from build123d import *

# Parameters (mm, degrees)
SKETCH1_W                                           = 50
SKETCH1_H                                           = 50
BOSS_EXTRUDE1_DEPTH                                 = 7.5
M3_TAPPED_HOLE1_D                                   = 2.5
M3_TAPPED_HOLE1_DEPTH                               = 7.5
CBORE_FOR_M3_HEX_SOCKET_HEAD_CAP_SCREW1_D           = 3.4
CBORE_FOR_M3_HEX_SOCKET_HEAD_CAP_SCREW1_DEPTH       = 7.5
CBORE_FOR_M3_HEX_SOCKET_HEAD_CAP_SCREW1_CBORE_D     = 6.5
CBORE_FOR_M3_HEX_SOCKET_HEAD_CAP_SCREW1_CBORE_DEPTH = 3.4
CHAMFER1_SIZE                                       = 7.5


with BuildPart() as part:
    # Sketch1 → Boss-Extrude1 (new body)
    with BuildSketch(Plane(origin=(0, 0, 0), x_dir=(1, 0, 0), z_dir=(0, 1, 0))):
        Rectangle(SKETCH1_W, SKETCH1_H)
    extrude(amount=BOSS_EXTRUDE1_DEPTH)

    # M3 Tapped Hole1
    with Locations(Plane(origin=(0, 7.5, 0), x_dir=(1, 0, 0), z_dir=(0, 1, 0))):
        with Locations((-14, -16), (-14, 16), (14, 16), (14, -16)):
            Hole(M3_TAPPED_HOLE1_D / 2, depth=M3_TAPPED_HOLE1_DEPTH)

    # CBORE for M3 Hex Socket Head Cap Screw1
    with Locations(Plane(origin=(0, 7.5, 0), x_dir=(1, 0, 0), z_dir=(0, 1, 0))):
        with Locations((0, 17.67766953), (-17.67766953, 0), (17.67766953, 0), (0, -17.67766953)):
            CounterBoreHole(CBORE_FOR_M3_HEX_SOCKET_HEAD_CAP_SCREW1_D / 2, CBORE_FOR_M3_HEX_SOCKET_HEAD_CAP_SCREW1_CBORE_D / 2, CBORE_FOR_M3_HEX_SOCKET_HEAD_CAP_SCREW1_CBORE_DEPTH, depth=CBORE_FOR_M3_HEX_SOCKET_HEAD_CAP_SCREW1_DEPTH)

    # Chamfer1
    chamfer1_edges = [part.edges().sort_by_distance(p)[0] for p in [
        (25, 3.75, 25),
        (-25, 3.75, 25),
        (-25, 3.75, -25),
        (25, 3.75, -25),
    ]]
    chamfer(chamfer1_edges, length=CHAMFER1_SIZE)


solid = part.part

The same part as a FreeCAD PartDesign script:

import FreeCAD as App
import Part
import Sketcher
from FreeCAD import Vector
Q = App.Units.Quantity


def edges_at(feature, points):
    """Names of the edges that pass closest to the given points."""
    edges = feature.Shape.Edges
    near = lambda p: min(range(len(edges)), key=lambda i: edges[i].distToShape(Part.Vertex(*p))[0])
    return sorted({f"Edge{near(p) + 1}" for p in points})


def add_polygon(sketch, points):
    """Adds a closed chain of lines whose ends are joined by coincident constraints."""
    first, n = sketch.GeometryCount, len(points)
    for a, b in zip(points, points[1:] + points[:1]):
        sketch.addGeometry(Part.LineSegment(App.Vector(*a, 0), App.Vector(*b, 0)), False)
    for i in range(n):
        sketch.addConstraint(Sketcher.Constraint("Coincident", first + i, 2, first + (i + 1) % n, 1))

doc = App.newDocument("Part")
body = doc.addObject("PartDesign::Body", "Body")

sketch1 = doc.addObject("Sketcher::SketchObject", "Sketch")
body.addObject(sketch1)
sketch1.AttachmentSupport = (doc.XZ_Plane, [""])
sketch1.MapMode = "FlatFace"
add_polygon(sketch1, [(-25, -25), (-25, 25), (25, 25), (25, -25)])
sketch1.addConstraint([
    Sketcher.Constraint("Vertical", 0),
    Sketcher.Constraint("Horizontal", 1),
    Sketcher.Constraint("Vertical", 2),
    Sketcher.Constraint("Horizontal", 3),
    Sketcher.Constraint("Symmetric", 0, 2, 2, 2, -1, 1),
    Sketcher.Constraint("Equal", 3, 0),
    Sketcher.Constraint("DistanceX", 1, 1, 1, 2, Q("50 mm")),
])
pad1 = doc.addObject("PartDesign::Pad", "Pad")
body.addObject(pad1)
pad1.Profile = sketch1
pad1.Length = 7.5
pad1.Reversed = True

sketch2 = doc.addObject("Sketcher::SketchObject", "Sketch001")
body.addObject(sketch2)
sketch2.AttachmentSupport = (doc.XZ_Plane, [""])
sketch2.MapMode = "FlatFace"
sketch2.AttachmentOffset = App.Placement(Vector(0, 0, -7.5), App.Rotation())
sketch2.addGeometry([
    Part.Circle(Vector(-14, 16, 0), Vector(0, 0, 1), 1.2),
    Part.Circle(Vector(-14, -16, 0), Vector(0, 0, 1), 1.2),
    Part.Circle(Vector(14, -16, 0), Vector(0, 0, 1), 1.2),
    Part.Circle(Vector(14, 16, 0), Vector(0, 0, 1), 1.2),
], False)
sketch2.addConstraint([
    Sketcher.Constraint("Equal", 0, 1),
    Sketcher.Constraint("Equal", 1, 2),
    Sketcher.Constraint("Equal", 2, 3),
    Sketcher.Constraint("Symmetric", 0, 3, 2, 3, -1, 1),
    Sketcher.Constraint("Symmetric", 1, 3, 3, 3, -1, 1),
    Sketcher.Constraint("Symmetric", 1, 3, 2, 3, -2),
    Sketcher.Constraint("Diameter", 0, Q("2.5 mm")),
    Sketcher.Constraint("DistanceX", 0, 3, -1, 1, Q("14 mm")),
    Sketcher.Constraint("DistanceY", -1, 1, 0, 3, Q("16 mm")),
])
doc.recompute()
hole = doc.addObject("PartDesign::Hole", "Hole")
body.addObject(hole)
hole.Profile = sketch2
hole.ThreadType = "None"
hole.Diameter = 2.5
hole.DepthType = "Dimension"
hole.Depth = 7.5
hole.DrillPoint = "Flat"
hole.Reversed = True

sketch3 = doc.addObject("Sketcher::SketchObject", "Sketch002")
body.addObject(sketch3)
sketch3.AttachmentSupport = (doc.XZ_Plane, [""])
sketch3.MapMode = "FlatFace"
sketch3.AttachmentOffset = App.Placement(Vector(0, 0, -7.5), App.Rotation())
sketch3.addGeometry([
    Part.Circle(Vector(0, -17.7, 0), Vector(0, 0, 1), 1.7),
    Part.Circle(Vector(-17.7, 0, 0), Vector(0, 0, 1), 1.7),
    Part.Circle(Vector(17.7, 0, 0), Vector(0, 0, 1), 1.7),
    Part.Circle(Vector(0, 17.7, 0), Vector(0, 0, 1), 1.7),
], False)
sketch3.addConstraint([
    Sketcher.Constraint("Equal", 0, 1),
    Sketcher.Constraint("Equal", 1, 2),
    Sketcher.Constraint("Equal", 2, 3),
    Sketcher.Constraint("Symmetric", 1, 3, 2, 3, -1, 1),
    Sketcher.Constraint("Symmetric", 0, 3, 3, 3, -1, 1),
    Sketcher.Constraint("PointOnObject", 0, 3, -2),
    Sketcher.Constraint("PointOnObject", 1, 3, -1),
    Sketcher.Constraint("Diameter", 0, Q("3.4 mm")),
    Sketcher.Constraint("DistanceY", 0, 3, -1, 1, Q("17.67767 mm")),
    Sketcher.Constraint("DistanceX", 1, 3, -1, 1, Q("17.67767 mm")),
])
doc.recompute()
hole2 = doc.addObject("PartDesign::Hole", "Hole001")
body.addObject(hole2)
hole2.Profile = sketch3
hole2.ThreadType = "None"
hole2.Diameter = 3.4
hole2.DepthType = "Dimension"
hole2.Depth = 7.5
hole2.DrillPoint = "Flat"
hole2.HoleCutType = "Counterbore"
hole2.HoleCutDiameter = 6.5
hole2.HoleCutDepth = 3.4
hole2.Reversed = True
doc.recompute()

chamfer = doc.addObject("PartDesign::Chamfer", "Chamfer")
body.addObject(chamfer)
chamfer.Base = (hole2, edges_at(hole2, [
    (25, 3.75, 25),
    (-25, 3.75, 25),
    (-25, 3.75, -25),
    (25, 3.75, -25),
]))
chamfer.Size = 7.5

doc.recompute()
